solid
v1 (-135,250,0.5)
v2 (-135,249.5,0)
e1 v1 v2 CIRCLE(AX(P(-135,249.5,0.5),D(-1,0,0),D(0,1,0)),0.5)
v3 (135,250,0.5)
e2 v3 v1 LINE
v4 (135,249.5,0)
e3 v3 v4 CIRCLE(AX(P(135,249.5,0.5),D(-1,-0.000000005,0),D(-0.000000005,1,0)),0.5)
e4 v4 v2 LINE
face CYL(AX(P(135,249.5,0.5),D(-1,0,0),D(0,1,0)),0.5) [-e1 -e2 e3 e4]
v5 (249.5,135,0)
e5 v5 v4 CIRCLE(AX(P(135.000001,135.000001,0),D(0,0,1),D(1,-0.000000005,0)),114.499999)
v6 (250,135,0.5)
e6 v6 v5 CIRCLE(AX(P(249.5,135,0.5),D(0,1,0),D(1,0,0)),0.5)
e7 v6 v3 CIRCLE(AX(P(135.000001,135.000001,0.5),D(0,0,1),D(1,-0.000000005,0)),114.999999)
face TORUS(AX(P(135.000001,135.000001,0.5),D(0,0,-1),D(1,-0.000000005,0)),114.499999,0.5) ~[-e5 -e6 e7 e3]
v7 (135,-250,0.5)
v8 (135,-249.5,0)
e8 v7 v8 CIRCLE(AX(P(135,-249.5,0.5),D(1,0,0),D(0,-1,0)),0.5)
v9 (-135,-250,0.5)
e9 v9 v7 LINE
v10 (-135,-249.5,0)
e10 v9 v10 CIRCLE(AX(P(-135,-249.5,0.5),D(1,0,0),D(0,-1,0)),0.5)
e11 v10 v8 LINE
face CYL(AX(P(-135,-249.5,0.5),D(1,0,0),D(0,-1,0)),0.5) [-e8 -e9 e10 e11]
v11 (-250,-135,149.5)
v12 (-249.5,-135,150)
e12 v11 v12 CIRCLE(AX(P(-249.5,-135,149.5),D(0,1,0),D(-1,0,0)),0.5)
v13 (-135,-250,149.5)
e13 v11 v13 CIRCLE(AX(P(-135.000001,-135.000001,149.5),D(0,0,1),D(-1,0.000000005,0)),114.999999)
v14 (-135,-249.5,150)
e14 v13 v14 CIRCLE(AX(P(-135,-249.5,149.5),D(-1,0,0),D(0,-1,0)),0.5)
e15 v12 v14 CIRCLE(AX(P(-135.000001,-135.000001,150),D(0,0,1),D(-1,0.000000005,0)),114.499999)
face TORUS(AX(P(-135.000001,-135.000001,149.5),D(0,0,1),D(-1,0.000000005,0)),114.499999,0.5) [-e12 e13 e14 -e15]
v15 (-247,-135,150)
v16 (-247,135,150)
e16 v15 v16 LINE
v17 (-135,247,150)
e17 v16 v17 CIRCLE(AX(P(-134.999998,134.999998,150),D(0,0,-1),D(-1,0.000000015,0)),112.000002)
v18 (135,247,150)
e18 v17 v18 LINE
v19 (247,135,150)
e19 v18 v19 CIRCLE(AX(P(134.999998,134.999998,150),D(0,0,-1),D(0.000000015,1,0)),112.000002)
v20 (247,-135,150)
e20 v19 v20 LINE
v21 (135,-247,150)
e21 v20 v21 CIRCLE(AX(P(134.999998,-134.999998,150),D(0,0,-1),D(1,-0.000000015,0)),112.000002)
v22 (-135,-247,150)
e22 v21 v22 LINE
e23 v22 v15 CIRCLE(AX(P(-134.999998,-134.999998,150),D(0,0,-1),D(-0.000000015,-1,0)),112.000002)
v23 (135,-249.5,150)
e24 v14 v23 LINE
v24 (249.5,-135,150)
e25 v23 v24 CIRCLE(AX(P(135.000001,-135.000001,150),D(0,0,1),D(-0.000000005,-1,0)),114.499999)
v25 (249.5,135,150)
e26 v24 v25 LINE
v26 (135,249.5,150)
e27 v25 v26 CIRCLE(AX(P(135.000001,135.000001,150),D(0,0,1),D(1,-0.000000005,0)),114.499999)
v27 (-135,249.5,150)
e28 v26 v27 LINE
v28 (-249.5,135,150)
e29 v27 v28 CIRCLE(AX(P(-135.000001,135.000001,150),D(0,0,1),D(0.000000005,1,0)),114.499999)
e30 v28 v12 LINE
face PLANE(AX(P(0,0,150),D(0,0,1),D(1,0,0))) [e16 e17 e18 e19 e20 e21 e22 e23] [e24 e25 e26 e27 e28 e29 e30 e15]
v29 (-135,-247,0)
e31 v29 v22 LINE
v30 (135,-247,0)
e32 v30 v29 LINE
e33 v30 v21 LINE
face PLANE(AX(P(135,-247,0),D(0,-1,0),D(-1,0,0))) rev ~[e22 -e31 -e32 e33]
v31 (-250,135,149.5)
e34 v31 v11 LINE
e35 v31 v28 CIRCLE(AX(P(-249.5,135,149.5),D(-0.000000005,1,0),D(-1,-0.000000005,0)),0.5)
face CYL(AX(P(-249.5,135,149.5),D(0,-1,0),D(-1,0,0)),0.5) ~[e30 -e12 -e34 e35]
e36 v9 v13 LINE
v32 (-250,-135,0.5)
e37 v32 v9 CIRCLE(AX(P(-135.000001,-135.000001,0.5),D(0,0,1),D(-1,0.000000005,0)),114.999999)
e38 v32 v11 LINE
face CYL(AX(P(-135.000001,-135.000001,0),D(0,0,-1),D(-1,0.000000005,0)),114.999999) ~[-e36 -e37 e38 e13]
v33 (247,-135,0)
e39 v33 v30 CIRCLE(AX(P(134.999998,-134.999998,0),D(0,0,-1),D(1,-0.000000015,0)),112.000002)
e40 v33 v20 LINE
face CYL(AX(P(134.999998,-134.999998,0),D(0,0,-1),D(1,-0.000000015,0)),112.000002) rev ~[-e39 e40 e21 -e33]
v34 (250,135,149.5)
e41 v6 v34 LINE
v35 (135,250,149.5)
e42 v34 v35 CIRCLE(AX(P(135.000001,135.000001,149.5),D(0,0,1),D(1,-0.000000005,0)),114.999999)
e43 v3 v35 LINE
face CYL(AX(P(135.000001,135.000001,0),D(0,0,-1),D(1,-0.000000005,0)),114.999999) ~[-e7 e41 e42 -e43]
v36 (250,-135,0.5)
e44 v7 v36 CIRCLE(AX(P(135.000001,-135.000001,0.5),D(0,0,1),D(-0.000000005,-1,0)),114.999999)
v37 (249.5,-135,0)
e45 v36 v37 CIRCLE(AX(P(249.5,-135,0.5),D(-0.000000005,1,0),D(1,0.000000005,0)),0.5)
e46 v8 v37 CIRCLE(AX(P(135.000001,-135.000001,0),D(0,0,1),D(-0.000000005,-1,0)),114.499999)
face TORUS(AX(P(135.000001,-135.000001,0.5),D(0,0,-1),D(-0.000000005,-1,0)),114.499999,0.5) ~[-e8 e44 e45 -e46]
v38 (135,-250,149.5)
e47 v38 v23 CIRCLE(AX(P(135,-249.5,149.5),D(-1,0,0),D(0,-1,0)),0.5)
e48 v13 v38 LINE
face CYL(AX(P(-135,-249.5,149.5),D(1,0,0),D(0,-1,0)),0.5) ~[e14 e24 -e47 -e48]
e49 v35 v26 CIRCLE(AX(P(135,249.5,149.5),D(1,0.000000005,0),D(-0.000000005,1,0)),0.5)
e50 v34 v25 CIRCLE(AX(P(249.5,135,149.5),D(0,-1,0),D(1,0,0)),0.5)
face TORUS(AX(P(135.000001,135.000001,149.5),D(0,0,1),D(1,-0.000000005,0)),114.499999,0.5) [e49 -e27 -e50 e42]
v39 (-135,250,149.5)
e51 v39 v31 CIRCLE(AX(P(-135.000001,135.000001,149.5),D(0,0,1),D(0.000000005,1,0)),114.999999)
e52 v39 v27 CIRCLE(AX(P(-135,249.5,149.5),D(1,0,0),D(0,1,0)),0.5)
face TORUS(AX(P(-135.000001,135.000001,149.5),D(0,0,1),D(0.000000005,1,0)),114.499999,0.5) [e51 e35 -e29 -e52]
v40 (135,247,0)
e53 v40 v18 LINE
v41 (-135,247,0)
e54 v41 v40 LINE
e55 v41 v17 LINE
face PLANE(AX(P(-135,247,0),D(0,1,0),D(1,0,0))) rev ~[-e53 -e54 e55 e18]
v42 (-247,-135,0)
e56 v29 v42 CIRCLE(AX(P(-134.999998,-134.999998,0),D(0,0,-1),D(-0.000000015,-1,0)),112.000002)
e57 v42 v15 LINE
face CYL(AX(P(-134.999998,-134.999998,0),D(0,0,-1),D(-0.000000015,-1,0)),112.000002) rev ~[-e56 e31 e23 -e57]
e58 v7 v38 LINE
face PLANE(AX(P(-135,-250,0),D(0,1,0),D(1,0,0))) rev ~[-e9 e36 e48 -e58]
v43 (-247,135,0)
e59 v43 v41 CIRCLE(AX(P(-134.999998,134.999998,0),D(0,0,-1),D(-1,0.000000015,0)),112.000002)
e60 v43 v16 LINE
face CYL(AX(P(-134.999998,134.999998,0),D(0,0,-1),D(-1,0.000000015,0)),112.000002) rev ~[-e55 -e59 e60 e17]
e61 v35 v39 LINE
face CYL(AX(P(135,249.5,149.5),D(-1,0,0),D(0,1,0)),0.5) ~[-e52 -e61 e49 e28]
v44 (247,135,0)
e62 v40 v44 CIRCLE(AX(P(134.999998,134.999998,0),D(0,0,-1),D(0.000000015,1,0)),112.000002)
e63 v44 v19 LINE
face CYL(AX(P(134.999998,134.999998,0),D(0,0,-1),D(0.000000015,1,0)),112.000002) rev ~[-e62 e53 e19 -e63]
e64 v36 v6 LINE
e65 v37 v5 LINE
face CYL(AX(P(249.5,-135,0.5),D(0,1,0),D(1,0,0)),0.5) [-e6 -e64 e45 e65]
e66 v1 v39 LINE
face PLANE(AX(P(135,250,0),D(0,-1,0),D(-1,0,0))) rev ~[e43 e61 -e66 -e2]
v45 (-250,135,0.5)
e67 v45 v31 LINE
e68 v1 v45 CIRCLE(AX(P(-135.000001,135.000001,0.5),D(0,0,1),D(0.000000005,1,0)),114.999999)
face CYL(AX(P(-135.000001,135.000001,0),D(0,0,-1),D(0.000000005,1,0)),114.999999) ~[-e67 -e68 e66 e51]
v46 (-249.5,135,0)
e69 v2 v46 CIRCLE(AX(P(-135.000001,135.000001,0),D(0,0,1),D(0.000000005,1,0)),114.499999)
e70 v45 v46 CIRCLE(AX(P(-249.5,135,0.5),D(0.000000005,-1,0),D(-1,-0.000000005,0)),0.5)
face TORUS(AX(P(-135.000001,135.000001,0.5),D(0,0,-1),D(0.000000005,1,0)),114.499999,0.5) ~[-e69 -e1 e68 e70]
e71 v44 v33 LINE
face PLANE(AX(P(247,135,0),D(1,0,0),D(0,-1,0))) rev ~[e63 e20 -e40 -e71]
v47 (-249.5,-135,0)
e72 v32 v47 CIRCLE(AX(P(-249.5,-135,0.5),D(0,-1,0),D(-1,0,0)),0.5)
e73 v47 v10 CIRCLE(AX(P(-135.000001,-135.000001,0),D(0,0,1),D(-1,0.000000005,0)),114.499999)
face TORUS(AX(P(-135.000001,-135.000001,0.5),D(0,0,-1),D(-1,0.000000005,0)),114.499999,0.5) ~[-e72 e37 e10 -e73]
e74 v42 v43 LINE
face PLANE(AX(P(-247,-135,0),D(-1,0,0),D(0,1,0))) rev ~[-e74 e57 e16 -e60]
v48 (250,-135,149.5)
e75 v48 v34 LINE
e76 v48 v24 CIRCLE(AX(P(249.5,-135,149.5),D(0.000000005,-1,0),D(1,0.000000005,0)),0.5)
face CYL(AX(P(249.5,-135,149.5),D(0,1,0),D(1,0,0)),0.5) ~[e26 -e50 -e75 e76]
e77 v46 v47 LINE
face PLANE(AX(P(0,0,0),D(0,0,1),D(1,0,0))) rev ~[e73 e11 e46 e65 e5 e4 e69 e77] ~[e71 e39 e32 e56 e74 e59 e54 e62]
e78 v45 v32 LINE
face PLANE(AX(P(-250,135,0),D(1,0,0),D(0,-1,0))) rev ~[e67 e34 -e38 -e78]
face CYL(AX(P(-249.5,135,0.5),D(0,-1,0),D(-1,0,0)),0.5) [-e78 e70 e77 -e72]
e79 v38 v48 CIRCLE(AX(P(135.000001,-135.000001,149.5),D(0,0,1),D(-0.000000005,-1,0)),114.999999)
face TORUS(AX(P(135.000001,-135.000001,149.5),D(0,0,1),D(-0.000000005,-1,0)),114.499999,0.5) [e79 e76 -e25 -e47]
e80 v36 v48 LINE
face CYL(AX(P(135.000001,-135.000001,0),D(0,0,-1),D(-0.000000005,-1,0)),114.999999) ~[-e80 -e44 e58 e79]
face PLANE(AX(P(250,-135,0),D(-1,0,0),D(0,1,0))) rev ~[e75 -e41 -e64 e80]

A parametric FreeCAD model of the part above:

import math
import FreeCAD as App
import Part
import Sketcher

V = App.Vector
Q = App.Units.Quantity


def edges_at(feature, points):
    """Names of the edges that pass closest to the given points."""
    edges = feature.Shape.Edges
    near = lambda p: min(range(len(edges)), key=lambda i: edges[i].distToShape(Part.Vertex(*p))[0])
    return sorted({f"Edge{near(p) + 1}" for p in points})

doc = App.newDocument("Part")
params = doc.addObject("Spreadsheet::Sheet", "Params")
for row, (alias, value) in enumerate([
    ("sketch1_radius", "114.999999 mm"),
    ("sketch1_radius2", "112.000002 mm"),
    ("sketch1_width", "270 mm"),
    ("pad1_length", "150 mm"),
    ("fillet_radius", "0.5 mm"),
], start=1):
    params.set(f"A{row}", alias)
    params.set(f"B{row}", "=" + value)
    params.setAlias(f"B{row}", alias)

body = doc.addObject("PartDesign::Body", "Body")

sketch1 = doc.addObject("Sketcher::SketchObject", "Sketch")
body.addObject(sketch1)
sketch1.AttachmentSupport = (doc.XY_Plane, [""])
sketch1.MapMode = "FlatFace"
sketch1.addGeometry([
    Part.LineSegment(V(135, 250, 0), V(-135, 250, 0)),
    Part.ArcOfCircle(Part.Circle(V(-135.000001, 135.000001, 0), V(0, 0, 1), 114.999999), math.radians(90), math.radians(180)),
    Part.LineSegment(V(-250, 135, 0), V(-250, -135, 0)),
    Part.ArcOfCircle(Part.Circle(V(-135.000001, -135.000001, 0), V(0, 0, 1), 114.999999), math.radians(180), math.radians(270)),
    Part.LineSegment(V(-135, -250, 0), V(135, -250, 0)),
    Part.ArcOfCircle(Part.Circle(V(135.000001, -135.000001, 0), V(0, 0, 1), 114.999999), math.radians(-90), math.radians(0)),
    Part.LineSegment(V(250, -135, 0), V(250, 135, 0)),
    Part.ArcOfCircle(Part.Circle(V(135.000001, 135.000001, 0), V(0, 0, 1), 114.999999), math.radians(0), math.radians(90)),
    Part.LineSegment(V(-247, -135, 0), V(-247, 135, 0)),
    Part.ArcOfCircle(Part.Circle(V(-134.999998, 134.999998, 0), V(0, 0, 1), 112.000002), math.radians(90.000001), math.radians(179.999999)),
    Part.LineSegment(V(-135, 247, 0), V(135, 247, 0)),
    Part.ArcOfCircle(Part.Circle(V(134.999998, 134.999998, 0), V(0, 0, 1), 112.000002), math.radians(0.000001), math.radians(89.999999)),
    Part.LineSegment(V(247, 135, 0), V(247, -135, 0)),
    Part.ArcOfCircle(Part.Circle(V(134.999998, -134.999998, 0), V(0, 0, 1), 112.000002), math.radians(-89.999999), math.radians(-0.000001)),
    Part.LineSegment(V(135, -247, 0), V(-135, -247, 0)),
    Part.ArcOfCircle(Part.Circle(V(-134.999998, -134.999998, 0), V(0, 0, 1), 112.000002), math.radians(-179.999999), math.radians(-90.000001)),
], False)
sketch1.addConstraint([
    Sketcher.Constraint("Tangent", 0, 2, 1, 1),
    Sketcher.Constraint("Tangent", 1, 2, 2, 1),
    Sketcher.Constraint("Tangent", 2, 2, 3, 1),
    Sketcher.Constraint("Tangent", 3, 2, 4, 1),
    Sketcher.Constraint("Tangent", 4, 2, 5, 1),
    Sketcher.Constraint("Tangent", 5, 2, 6, 1),
    Sketcher.Constraint("Tangent", 6, 2, 7, 1),
    Sketcher.Constraint("Tangent", 7, 2, 0, 1),
    Sketcher.Constraint("Tangent", 8, 2, 9, 2),
    Sketcher.Constraint("Tangent", 9, 1, 10, 1),
    Sketcher.Constraint("Tangent", 10, 2, 11, 2),
    Sketcher.Constraint("Tangent", 11, 1, 12, 1),
    Sketcher.Constraint("Tangent", 12, 2, 13, 2),
    Sketcher.Constraint("Tangent", 13, 1, 14, 1),
    Sketcher.Constraint("Tangent", 14, 2, 15, 2),
    Sketcher.Constraint("Tangent", 15, 1, 8, 1),
    Sketcher.Constraint("Horizontal", 0),
    Sketcher.Constraint("Vertical", 2),
    Sketcher.Constraint("Horizontal", 4),
    Sketcher.Constraint("Vertical", 6),
    Sketcher.Constraint("Vertical", 8),
    Sketcher.Constraint("Horizontal", 10),
    Sketcher.Constraint("Vertical", 12),
    Sketcher.Constraint("Horizontal", 14),
    Sketcher.Constraint("Coincident", 9, 3, 1, 3),
    Sketcher.Constraint("Coincident", 11, 3, 7, 3),
    Sketcher.Constraint("Coincident", 13, 3, 5, 3),
    Sketcher.Constraint("Equal", 1, 3),
    Sketcher.Constraint("Equal", 3, 5),
    Sketcher.Constraint("Equal", 5, 7),
    Sketcher.Constraint("Equal", 13, 15),
    Sketcher.Constraint("Symmetric", 1, 3, 5, 3, -1, 1),
    Sketcher.Constraint("Equal", 14, 2),
    Sketcher.Constraint("Radius", 1, Q("114.999999 mm")),
    Sketcher.Constraint("Radius", 9, Q("112.000002 mm")),
    Sketcher.Constraint("DistanceX", 0, 2, 0, 1, Q("270 mm")),
])
sketch1.setExpression("Constraints[33]", "Params.sketch1_radius")
sketch1.setExpression("Constraints[34]", "Params.sketch1_radius2")
sketch1.setExpression("Constraints[35]", "Params.sketch1_width")
pad1 = doc.addObject("PartDesign::Pad", "Pad")
body.addObject(pad1)
pad1.Profile = sketch1
pad1.setExpression("Length", "Params.pad1_length")
doc.recompute()

fillet = doc.addObject("PartDesign::Fillet", "Fillet")
body.addObject(fillet)
fillet.Base = (pad1, edges_at(pad1, [
    (0, -250, 150),
    (216.317, -216.317, 150),
    (250, 0, 150),
    (216.317, 216.317, 150),
    (0, 250, 150),
    (-216.317, 216.317, 150),
    (-250, 0, 150),
    (-216.317, -216.317, 150),
    (0, -250, 0),
    (-216.317, -216.317, 0),
    (-250, 0, 0),
    (-216.317, 216.317, 0),
    (0, 250, 0),
    (216.317, 216.317, 0),
    (250, 0, 0),
    (216.317, -216.317, 0),
]))
fillet.setExpression("Radius", "Params.fillet_radius")

doc.recompute()
